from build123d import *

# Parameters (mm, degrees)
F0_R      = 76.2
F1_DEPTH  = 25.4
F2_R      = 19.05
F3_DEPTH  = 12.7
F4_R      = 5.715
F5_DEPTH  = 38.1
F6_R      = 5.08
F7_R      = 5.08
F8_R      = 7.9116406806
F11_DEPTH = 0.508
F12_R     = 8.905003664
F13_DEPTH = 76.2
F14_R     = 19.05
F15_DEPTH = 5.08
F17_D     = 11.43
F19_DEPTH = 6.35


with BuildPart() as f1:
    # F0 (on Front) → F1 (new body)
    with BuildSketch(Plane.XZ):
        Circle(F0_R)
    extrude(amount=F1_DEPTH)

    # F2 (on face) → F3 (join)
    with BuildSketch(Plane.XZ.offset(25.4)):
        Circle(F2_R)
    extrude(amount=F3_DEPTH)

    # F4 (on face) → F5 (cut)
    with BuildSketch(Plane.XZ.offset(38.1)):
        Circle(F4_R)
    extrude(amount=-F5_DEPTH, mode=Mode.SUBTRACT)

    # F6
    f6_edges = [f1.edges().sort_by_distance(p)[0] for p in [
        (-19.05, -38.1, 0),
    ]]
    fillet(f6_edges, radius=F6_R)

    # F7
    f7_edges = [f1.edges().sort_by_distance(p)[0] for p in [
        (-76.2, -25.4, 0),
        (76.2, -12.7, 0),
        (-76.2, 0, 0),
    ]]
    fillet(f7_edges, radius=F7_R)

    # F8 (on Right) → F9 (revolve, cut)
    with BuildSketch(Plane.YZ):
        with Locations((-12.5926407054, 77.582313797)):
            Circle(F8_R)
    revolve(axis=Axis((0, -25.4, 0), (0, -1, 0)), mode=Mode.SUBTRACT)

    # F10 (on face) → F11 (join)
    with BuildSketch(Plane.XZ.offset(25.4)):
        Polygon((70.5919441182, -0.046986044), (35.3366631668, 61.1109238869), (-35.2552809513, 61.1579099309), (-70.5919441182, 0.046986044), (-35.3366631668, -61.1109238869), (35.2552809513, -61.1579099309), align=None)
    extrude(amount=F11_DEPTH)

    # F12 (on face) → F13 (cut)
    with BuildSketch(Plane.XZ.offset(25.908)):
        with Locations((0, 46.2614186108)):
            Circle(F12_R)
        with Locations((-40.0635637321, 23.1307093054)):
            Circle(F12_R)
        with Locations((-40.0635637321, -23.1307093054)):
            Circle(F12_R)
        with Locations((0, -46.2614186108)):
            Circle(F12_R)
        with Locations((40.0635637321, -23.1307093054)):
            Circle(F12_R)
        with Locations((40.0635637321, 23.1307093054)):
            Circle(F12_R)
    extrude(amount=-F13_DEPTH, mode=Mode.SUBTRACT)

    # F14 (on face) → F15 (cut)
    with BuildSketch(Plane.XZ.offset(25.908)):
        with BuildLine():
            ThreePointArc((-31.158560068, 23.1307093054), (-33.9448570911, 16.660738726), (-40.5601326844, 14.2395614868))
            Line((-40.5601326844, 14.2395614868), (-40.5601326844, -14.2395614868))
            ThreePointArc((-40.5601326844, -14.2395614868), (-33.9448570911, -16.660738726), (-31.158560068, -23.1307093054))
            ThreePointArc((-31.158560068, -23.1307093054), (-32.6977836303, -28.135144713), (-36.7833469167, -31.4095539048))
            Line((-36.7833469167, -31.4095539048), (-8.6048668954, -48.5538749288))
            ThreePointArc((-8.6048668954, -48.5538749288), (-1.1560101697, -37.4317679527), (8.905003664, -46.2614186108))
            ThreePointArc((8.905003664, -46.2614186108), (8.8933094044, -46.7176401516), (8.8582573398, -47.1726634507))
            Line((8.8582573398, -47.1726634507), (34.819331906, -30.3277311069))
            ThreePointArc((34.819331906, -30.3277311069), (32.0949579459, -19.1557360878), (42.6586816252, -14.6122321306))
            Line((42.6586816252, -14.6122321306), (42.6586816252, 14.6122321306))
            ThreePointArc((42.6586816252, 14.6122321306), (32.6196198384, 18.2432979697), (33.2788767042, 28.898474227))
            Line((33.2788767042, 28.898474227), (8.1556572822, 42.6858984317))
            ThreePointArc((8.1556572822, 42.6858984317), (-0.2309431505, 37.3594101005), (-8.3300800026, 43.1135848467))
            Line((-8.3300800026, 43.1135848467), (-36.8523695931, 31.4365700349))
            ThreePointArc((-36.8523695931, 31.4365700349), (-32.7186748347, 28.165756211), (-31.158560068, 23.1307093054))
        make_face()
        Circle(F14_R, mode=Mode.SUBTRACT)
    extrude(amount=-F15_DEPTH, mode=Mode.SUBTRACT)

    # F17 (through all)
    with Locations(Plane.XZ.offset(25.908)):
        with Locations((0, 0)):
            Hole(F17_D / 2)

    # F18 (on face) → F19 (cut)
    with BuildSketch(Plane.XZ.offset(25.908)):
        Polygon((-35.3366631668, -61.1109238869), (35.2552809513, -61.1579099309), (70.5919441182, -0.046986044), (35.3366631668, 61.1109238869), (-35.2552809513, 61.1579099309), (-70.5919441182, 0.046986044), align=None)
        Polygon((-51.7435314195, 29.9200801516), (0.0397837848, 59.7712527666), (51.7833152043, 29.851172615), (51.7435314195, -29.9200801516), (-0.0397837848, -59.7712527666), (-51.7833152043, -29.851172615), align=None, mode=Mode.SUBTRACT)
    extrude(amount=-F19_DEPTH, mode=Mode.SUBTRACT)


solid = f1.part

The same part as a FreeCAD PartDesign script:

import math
import FreeCAD as App
import Part
import Sketcher
Q = App.Units.Quantity


def edges_at(feature, points):
    """Names of the edges that pass closest to the given points."""
    edges = feature.Shape.Edges
    near = lambda p: min(range(len(edges)), key=lambda i: edges[i].distToShape(Part.Vertex(*p))[0])
    return sorted({f"Edge{near(p) + 1}" for p in points})


def add_polygon(sketch, points):
    """Adds a closed chain of lines whose ends are joined by coincident constraints."""
    first, n = sketch.GeometryCount, len(points)
    for a, b in zip(points, points[1:] + points[:1]):
        sketch.addGeometry(Part.LineSegment(App.Vector(*a, 0), App.Vector(*b, 0)), False)
    for i in range(n):
        sketch.addConstraint(Sketcher.Constraint("Coincident", first + i, 2, first + (i + 1) % n, 1))

doc = App.newDocument("Part")
body = doc.addObject("PartDesign::Body", "Body")

sketch1 = body.newObject("Sketcher::SketchObject", "Sketch")
sketch1.AttachmentSupport = (doc.getObject("XZ_Plane"), [""])
sketch1.MapMode = "FlatFace"
sketch1.addGeometry(Part.Circle(App.Vector(0, 0, 0), App.Vector(0, 0, 1), 76), False)
sketch1.addConstraint([
    Sketcher.Constraint("Coincident", 0, 3, -1, 1),
    Sketcher.Constraint("Diameter", 0, Q("6 in")),
])
pad1 = body.newObject("PartDesign::Pad", "Pad")
pad1.Profile = sketch1
pad1.Length = Q("1 in")

sketch2 = body.newObject("Sketcher::SketchObject", "Sketch001")
sketch2.AttachmentSupport = (doc.getObject("XZ_Plane"), [""])
sketch2.MapMode = "FlatFace"
sketch2.AttachmentOffset = App.Placement(App.Vector(0, 0, 1 * 25.4), App.Rotation())
sketch2.addGeometry(Part.Circle(App.Vector(0, 0, 0), App.Vector(0, 0, 1), 19), False)
sketch2.addConstraint([
    Sketcher.Constraint("Coincident", 0, 3, -1, 1),
    Sketcher.Constraint("Diameter", 0, Q("1.5 in")),
])
pad2 = body.newObject("PartDesign::Pad", "Pad001")
pad2.Profile = sketch2
pad2.Length = Q("0.5 in")

sketch3 = body.newObject("Sketcher::SketchObject", "Sketch002")
sketch3.AttachmentSupport = (doc.getObject("XZ_Plane"), [""])
sketch3.MapMode = "FlatFace"
sketch3.AttachmentOffset = App.Placement(App.Vector(0, 0, 1.5 * 25.4), App.Rotation())
sketch3.addGeometry(Part.Circle(App.Vector(0, 0, 0), App.Vector(0, 0, 1), 6), False)
sketch3.addConstraint([
    Sketcher.Constraint("Coincident", 0, 3, -1, 1),
    Sketcher.Constraint("Diameter", 0, Q("0.45 in")),
])
pocket1 = body.newObject("PartDesign::Pocket", "Pocket")
pocket1.Profile = sketch3
pocket1.Length = Q("1.5 in")
doc.recompute()

fillet = body.newObject("PartDesign::Fillet", "Fillet")
fillet.Base = (pocket1, edges_at(pocket1, [(-19.05, -38.1, 0)]))
fillet.Radius = Q("0.2 in")
doc.recompute()

fillet2 = body.newObject("PartDesign::Fillet", "Fillet001")
fillet2.Base = (fillet, edges_at(fillet, [(-76.2, -25.4, 0), (76.2, -12.7, 0), (-76.2, 0, 0)]))
fillet2.Radius = Q("0.2 in")

sketch4 = body.newObject("Sketcher::SketchObject", "Sketch003")
sketch4.AttachmentSupport = (doc.getObject("YZ_Plane"), [""])
sketch4.MapMode = "FlatFace"
sketch4.addGeometry(Part.Circle(App.Vector(-13, 78, 0), App.Vector(0, 0, 1), 8), False)
sketch4.addConstraint([
    Sketcher.Constraint("Diameter", 0, Q("15.823281 mm")),
    Sketcher.Constraint("DistanceX", 0, 3, -1, 1, Q("12.592641 mm")),
    Sketcher.Constraint("DistanceY", -1, 1, 0, 3, Q("77.582314 mm")),
])
groove = body.newObject("PartDesign::Groove", "Groove")
groove.Profile = sketch4
groove.ReferenceAxis = (sketch4, ["H_Axis"])
groove.Angle = 360

sketch5 = body.newObject("Sketcher::SketchObject", "Sketch004")
sketch5.AttachmentSupport = (doc.getObject("XZ_Plane"), [""])
sketch5.MapMode = "FlatFace"
sketch5.AttachmentOffset = App.Placement(App.Vector(0, 0, 1 * 25.4), App.Rotation())
add_polygon(sketch5, [(71, 0), (35, 61), (-35, 61), (-71, 0), (-35, -61), (35, -61)])
sketch5.addConstraint([
    Sketcher.Constraint("Symmetric", 0, 2, 3, 2, -1, 1),
    Sketcher.Constraint("Symmetric", 1, 2, 4, 2, -1, 1),
    Sketcher.Constraint("Symmetric", 2, 2, 5, 2, -1, 1),
    Sketcher.Constraint("Equal", 0, 1),
    Sketcher.Constraint("Equal", 1, 2),
    Sketcher.Constraint("Distance", 0, Q("70.59196 mm")),
    Sketcher.Constraint("DistanceX", 1, 2, -1, 1, Q("35.255281 mm")),
    Sketcher.Constraint("DistanceY", -1, 1, 1, 2, Q("61.15791 mm")),
    Sketcher.Constraint("DistanceX", 2, 2, 3, 2, Q("35.255281 mm")),
])
pad3 = body.newObject("PartDesign::Pad", "Pad002")
pad3.Profile = sketch5
pad3.Length = Q("0.02 in")

sketch6 = body.newObject("Sketcher::SketchObject", "Sketch005")
sketch6.AttachmentSupport = (doc.getObject("XZ_Plane"), [""])
sketch6.MapMode = "FlatFace"
sketch6.AttachmentOffset = App.Placement(App.Vector(0, 0, 1.02 * 25.4), App.Rotation())
sketch6.addGeometry([
    Part.Circle(App.Vector(0, 46, 0), App.Vector(0, 0, 1), 9),
    Part.Circle(App.Vector(-40, 23, 0), App.Vector(0, 0, 1), 9),
    Part.Circle(App.Vector(-40, -23, 0), App.Vector(0, 0, 1), 9),
    Part.Circle(App.Vector(0, -46, 0), App.Vector(0, 0, 1), 9),
    Part.Circle(App.Vector(40, -23, 0), App.Vector(0, 0, 1), 9),
    Part.Circle(App.Vector(40, 23, 0), App.Vector(0, 0, 1), 9),
], False)
sketch6.addConstraint([
    Sketcher.Constraint("Equal", 0, 1),
    Sketcher.Constraint("Equal", 1, 2),
    Sketcher.Constraint("Equal", 2, 3),
    Sketcher.Constraint("Equal", 3, 4),
    Sketcher.Constraint("Equal", 4, 5),
    Sketcher.Constraint("Symmetric", 0, 3, 3, 3, -1, 1),
    Sketcher.Constraint("Symmetric", 1, 3, 4, 3, -1, 1),
    Sketcher.Constraint("Symmetric", 2, 3, 5, 3, -1, 1),
    Sketcher.Constraint("Symmetric", 2, 3, 4, 3, -2),
    Sketcher.Constraint("PointOnObject", 0, 3, -2),
    Sketcher.Constraint("Diameter", 0, Q("17.810007 mm")),
    Sketcher.Constraint("DistanceY", -1, 1, 0, 3, Q("46.261419 mm")),
    Sketcher.Constraint("DistanceY", -1, 1, 1, 3, Q("23.130709 mm")),
    Sketcher.Constraint("DistanceX", 1, 3, -1, 1, Q("40.063564 mm")),
])
pocket2 = body.newObject("PartDesign::Pocket", "Pocket001")
pocket2.Profile = sketch6
pocket2.Length = Q("3 in")

sketch7 = body.newObject("Sketcher::SketchObject", "Sketch006")
sketch7.AttachmentSupport = (doc.getObject("XZ_Plane"), [""])
sketch7.MapMode = "FlatFace"
sketch7.AttachmentOffset = App.Placement(App.Vector(0, 0, 1.02 * 25.4), App.Rotation())
sketch7.addGeometry([
    Part.ArcOfCircle(Part.Circle(App.Vector(-40.1, 23.1, 0), App.Vector(0, 0, 1), 8.9), math.radians(-93), math.radians(0)),
    Part.LineSegment(App.Vector(-40.6, 14.2, 0), App.Vector(-40.6, -14.2, 0)),
    Part.ArcOfCircle(Part.Circle(App.Vector(-40.1, -23.1, 0), App.Vector(0, 0, 1), 8.9), math.radians(0), math.radians(93)),
    Part.ArcOfCircle(Part.Circle(App.Vector(-40.1, -23.1, 0), App.Vector(0, 0, 1), 8.9), math.radians(-68), math.radians(0)),
    Part.LineSegment(App.Vector(-36.8, -31.4, 0), App.Vector(-8.6, -48.6, 0)),
    Part.ArcOfCircle(Part.Circle(App.Vector(0, -46.3, 0), App.Vector(0, 0, 1), 8.9), math.radians(0), math.radians(195)),
    Part.ArcOfCircle(Part.Circle(App.Vector(0, -46.3, 0), App.Vector(0, 0, 1), 8.9), math.radians(-5.87), math.radians(0)),
    Part.LineSegment(App.Vector(8.9, -47.2, 0), App.Vector(34.8, -30.3, 0)),
    Part.ArcOfCircle(Part.Circle(App.Vector(40.1, -23.1, 0), App.Vector(0, 0, 1), 8.9), math.radians(73), math.radians(234)),
    Part.LineSegment(App.Vector(42.7, -14.6, 0), App.Vector(42.7, 14.6, 0)),
    Part.ArcOfCircle(Part.Circle(App.Vector(40.1, 23.1, 0), App.Vector(0, 0, 1), 8.9), math.radians(140), math.radians(287)),
    Part.LineSegment(App.Vector(33.3, 28.9, 0), App.Vector(8.2, 42.7, 0)),
    Part.ArcOfCircle(Part.Circle(App.Vector(0, 46.3, 0), App.Vector(0, 0, 1), 8.9), math.radians(-159), math.radians(-24)),
    Part.LineSegment(App.Vector(-8.3, 43.1, 0), App.Vector(-36.9, 31.4, 0)),
    Part.ArcOfCircle(Part.Circle(App.Vector(-40.1, 23.1, 0), App.Vector(0, 0, 1), 8.9), math.radians(0), math.radians(69)),
    Part.Circle(App.Vector(0, 0, 0), App.Vector(0, 0, 1), 19.1),
], False)
sketch7.addConstraint([
    Sketcher.Constraint("Coincident", 0, 1, 1, 1),
    Sketcher.Constraint("Coincident", 1, 2, 2, 2),
    Sketcher.Constraint("Tangent", 2, 1, 3, 2),
    Sketcher.Constraint("Coincident", 3, 1, 4, 1),
    Sketcher.Constraint("Coincident", 4, 2, 5, 2),
    Sketcher.Constraint("Tangent", 5, 1, 6, 2),
    Sketcher.Constraint("Coincident", 6, 1, 7, 1),
    Sketcher.Constraint("Coincident", 7, 2, 8, 2),
    Sketcher.Constraint("Coincident", 8, 1, 9, 1),
    Sketcher.Constraint("Coincident", 9, 2, 10, 2),
    Sketcher.Constraint("Coincident", 10, 1, 11, 1),
    Sketcher.Constraint("Coincident", 11, 2, 12, 2),
    Sketcher.Constraint("Coincident", 12, 1, 13, 1),
    Sketcher.Constraint("Coincident", 13, 2, 14, 2),
    Sketcher.Constraint("Tangent", 14, 1, 0, 2),
    Sketcher.Constraint("Vertical", 1),
    Sketcher.Constraint("Vertical", 9),
    Sketcher.Constraint("Coincident", 15, 3, -1, 1),
    Sketcher.Constraint("Equal", 0, 2),
    Sketcher.Constraint("Equal", 2, 3),
    Sketcher.Constraint("Equal", 3, 5),
    Sketcher.Constraint("Equal", 5, 6),
    Sketcher.Constraint("Equal", 6, 8),
    Sketcher.Constraint("Equal", 8, 10),
    Sketcher.Constraint("Equal", 10, 12),
    Sketcher.Constraint("Equal", 12, 14),
    Sketcher.Constraint("Symmetric", 0, 3, 8, 3, -1, 1),
    Sketcher.Constraint("Symmetric", 2, 3, 10, 3, -1, 1),
    Sketcher.Constraint("Symmetric", 5, 3, 12, 3, -1, 1),
    Sketcher.Constraint("Symmetric", 2, 3, 8, 3, -2),
    Sketcher.Constraint("PointOnObject", 5, 3, -2),
    Sketcher.Constraint("Horizontal", 8, 3, 2, 1),
    Sketcher.Constraint("Horizontal", 6, 3, 5, 1),
    Sketcher.Constraint("Horizontal", 10, 3, 14, 1),
    Sketcher.Constraint("Diameter", 15, Q("1.5 in")),
    Sketcher.Constraint("Radius", 0, Q("8.905004 mm")),
    Sketcher.Constraint("Distance", 7, Q("30.947199 mm")),
    Sketcher.Constraint("DistanceY", -1, 1, 11, 2, Q("42.685898 mm")),
    Sketcher.Constraint("DistanceY", 7, 2, 8, 1, Q("15.715499 mm")),
    Sketcher.Constraint("Distance", 13, Q("30.820021 mm")),
    Sketcher.Constraint("DistanceY", 1, 2, 1, 1, Q("28.479123 mm")),
    Sketcher.Constraint("DistanceY", 9, 1, 9, 2, Q("29.224464 mm")),
    Sketcher.Constraint("DistanceY", -1, 1, 0, 3, Q("23.130709 mm")),
    Sketcher.Constraint("DistanceY", 5, 3, -1, 1, Q("46.261419 mm")),
    Sketcher.Constraint("DistanceX", 2, 1, -1, 1, Q("31.15856 mm")),
    Sketcher.Constraint("DistanceX", 12, 1, -1, 1, Q("8.33008 mm")),
    Sketcher.Constraint("DistanceX", 3, 1, 4, 2, Q("28.17848 mm")),
    Sketcher.Constraint("DistanceY", 4, 2, 3, 1, Q("17.144321 mm")),
    Sketcher.Constraint("DistanceX", 11, 2, 10, 1, Q("25.123219 mm")),
])
pocket3 = body.newObject("PartDesign::Pocket", "Pocket002")
pocket3.Profile = sketch7
pocket3.Length = Q("0.2 in")

sketch8 = body.newObject("Sketcher::SketchObject", "Sketch007")
sketch8.AttachmentSupport = (doc.getObject("XZ_Plane"), [""])
sketch8.MapMode = "FlatFace"
sketch8.AttachmentOffset = App.Placement(App.Vector(0, 0, 1.02 * 25.4), App.Rotation())
sketch8.addGeometry(Part.Circle(App.Vector(0, 0, 0), App.Vector(0, 0, 1), 6), False)
sketch8.addConstraint([
    Sketcher.Constraint("Coincident", 0, 3, -1, 1),
    Sketcher.Constraint("Diameter", 0, Q("0.45 in")),
])
doc.recompute()
hole = body.newObject("PartDesign::Hole", "Hole")
hole.Profile = sketch8
hole.ThreadType = "None"
hole.Diameter = Q("0.45 in")
hole.DepthType = "ThroughAll"

sketch9 = body.newObject("Sketcher::SketchObject", "Sketch008")
sketch9.AttachmentSupport = (doc.getObject("XZ_Plane"), [""])
sketch9.MapMode = "FlatFace"
sketch9.AttachmentOffset = App.Placement(App.Vector(0, 0, 1.02 * 25.4), App.Rotation())
add_polygon(sketch9, [(-35, -61), (35, -61), (71, 0), (35, 61), (-35, 61), (-71, 0)])
add_polygon(sketch9, [(-52, -30), (-52, 30), (0, 60), (52, 30), (52, -30), (0, -60)])
sketch9.addConstraint([
    Sketcher.Constraint("Symmetric", 0, 2, 3, 2, -1, 1),
    Sketcher.Constraint("Symmetric", 1, 2, 4, 2, -1, 1),
    Sketcher.Constraint("Symmetric", 2, 2, 5, 2, -1, 1),
    Sketcher.Constraint("Symmetric", 6, 2, 9, 2, -1, 1),
    Sketcher.Constraint("Symmetric", 7, 2, 10, 2, -1, 1),
    Sketcher.Constraint("Symmetric", 8, 2, 11, 2, -1, 1),
    Sketcher.Constraint("Perpendicular", 3, 6),
    Sketcher.Constraint("Perpendicular", 5, 7),
    Sketcher.Constraint("Perpendicular", 4, 8),
    Sketcher.Constraint("Equal", 0, 1),
    Sketcher.Constraint("Equal", 1, 2),
    Sketcher.Constraint("Equal", 6, 7),
    Sketcher.Constraint("Equal", 7, 8),
    Sketcher.Constraint("Distance", 0, Q("70.59196 mm")),
    Sketcher.Constraint("DistanceX", -1, 1, 0, 2, Q("35.255281 mm")),
    Sketcher.Constraint("DistanceY", 0, 2, -1, 1, Q("61.15791 mm")),
    Sketcher.Constraint("DistanceX", 6, 2, -1, 1, Q("51.743531 mm")),
    Sketcher.Constraint("DistanceY", -1, 1, 6, 2, Q("29.92008 mm")),
])
pocket4 = body.newObject("PartDesign::Pocket", "Pocket003")
pocket4.Profile = sketch9
pocket4.Length = Q("0.25 in")

doc.recompute()
